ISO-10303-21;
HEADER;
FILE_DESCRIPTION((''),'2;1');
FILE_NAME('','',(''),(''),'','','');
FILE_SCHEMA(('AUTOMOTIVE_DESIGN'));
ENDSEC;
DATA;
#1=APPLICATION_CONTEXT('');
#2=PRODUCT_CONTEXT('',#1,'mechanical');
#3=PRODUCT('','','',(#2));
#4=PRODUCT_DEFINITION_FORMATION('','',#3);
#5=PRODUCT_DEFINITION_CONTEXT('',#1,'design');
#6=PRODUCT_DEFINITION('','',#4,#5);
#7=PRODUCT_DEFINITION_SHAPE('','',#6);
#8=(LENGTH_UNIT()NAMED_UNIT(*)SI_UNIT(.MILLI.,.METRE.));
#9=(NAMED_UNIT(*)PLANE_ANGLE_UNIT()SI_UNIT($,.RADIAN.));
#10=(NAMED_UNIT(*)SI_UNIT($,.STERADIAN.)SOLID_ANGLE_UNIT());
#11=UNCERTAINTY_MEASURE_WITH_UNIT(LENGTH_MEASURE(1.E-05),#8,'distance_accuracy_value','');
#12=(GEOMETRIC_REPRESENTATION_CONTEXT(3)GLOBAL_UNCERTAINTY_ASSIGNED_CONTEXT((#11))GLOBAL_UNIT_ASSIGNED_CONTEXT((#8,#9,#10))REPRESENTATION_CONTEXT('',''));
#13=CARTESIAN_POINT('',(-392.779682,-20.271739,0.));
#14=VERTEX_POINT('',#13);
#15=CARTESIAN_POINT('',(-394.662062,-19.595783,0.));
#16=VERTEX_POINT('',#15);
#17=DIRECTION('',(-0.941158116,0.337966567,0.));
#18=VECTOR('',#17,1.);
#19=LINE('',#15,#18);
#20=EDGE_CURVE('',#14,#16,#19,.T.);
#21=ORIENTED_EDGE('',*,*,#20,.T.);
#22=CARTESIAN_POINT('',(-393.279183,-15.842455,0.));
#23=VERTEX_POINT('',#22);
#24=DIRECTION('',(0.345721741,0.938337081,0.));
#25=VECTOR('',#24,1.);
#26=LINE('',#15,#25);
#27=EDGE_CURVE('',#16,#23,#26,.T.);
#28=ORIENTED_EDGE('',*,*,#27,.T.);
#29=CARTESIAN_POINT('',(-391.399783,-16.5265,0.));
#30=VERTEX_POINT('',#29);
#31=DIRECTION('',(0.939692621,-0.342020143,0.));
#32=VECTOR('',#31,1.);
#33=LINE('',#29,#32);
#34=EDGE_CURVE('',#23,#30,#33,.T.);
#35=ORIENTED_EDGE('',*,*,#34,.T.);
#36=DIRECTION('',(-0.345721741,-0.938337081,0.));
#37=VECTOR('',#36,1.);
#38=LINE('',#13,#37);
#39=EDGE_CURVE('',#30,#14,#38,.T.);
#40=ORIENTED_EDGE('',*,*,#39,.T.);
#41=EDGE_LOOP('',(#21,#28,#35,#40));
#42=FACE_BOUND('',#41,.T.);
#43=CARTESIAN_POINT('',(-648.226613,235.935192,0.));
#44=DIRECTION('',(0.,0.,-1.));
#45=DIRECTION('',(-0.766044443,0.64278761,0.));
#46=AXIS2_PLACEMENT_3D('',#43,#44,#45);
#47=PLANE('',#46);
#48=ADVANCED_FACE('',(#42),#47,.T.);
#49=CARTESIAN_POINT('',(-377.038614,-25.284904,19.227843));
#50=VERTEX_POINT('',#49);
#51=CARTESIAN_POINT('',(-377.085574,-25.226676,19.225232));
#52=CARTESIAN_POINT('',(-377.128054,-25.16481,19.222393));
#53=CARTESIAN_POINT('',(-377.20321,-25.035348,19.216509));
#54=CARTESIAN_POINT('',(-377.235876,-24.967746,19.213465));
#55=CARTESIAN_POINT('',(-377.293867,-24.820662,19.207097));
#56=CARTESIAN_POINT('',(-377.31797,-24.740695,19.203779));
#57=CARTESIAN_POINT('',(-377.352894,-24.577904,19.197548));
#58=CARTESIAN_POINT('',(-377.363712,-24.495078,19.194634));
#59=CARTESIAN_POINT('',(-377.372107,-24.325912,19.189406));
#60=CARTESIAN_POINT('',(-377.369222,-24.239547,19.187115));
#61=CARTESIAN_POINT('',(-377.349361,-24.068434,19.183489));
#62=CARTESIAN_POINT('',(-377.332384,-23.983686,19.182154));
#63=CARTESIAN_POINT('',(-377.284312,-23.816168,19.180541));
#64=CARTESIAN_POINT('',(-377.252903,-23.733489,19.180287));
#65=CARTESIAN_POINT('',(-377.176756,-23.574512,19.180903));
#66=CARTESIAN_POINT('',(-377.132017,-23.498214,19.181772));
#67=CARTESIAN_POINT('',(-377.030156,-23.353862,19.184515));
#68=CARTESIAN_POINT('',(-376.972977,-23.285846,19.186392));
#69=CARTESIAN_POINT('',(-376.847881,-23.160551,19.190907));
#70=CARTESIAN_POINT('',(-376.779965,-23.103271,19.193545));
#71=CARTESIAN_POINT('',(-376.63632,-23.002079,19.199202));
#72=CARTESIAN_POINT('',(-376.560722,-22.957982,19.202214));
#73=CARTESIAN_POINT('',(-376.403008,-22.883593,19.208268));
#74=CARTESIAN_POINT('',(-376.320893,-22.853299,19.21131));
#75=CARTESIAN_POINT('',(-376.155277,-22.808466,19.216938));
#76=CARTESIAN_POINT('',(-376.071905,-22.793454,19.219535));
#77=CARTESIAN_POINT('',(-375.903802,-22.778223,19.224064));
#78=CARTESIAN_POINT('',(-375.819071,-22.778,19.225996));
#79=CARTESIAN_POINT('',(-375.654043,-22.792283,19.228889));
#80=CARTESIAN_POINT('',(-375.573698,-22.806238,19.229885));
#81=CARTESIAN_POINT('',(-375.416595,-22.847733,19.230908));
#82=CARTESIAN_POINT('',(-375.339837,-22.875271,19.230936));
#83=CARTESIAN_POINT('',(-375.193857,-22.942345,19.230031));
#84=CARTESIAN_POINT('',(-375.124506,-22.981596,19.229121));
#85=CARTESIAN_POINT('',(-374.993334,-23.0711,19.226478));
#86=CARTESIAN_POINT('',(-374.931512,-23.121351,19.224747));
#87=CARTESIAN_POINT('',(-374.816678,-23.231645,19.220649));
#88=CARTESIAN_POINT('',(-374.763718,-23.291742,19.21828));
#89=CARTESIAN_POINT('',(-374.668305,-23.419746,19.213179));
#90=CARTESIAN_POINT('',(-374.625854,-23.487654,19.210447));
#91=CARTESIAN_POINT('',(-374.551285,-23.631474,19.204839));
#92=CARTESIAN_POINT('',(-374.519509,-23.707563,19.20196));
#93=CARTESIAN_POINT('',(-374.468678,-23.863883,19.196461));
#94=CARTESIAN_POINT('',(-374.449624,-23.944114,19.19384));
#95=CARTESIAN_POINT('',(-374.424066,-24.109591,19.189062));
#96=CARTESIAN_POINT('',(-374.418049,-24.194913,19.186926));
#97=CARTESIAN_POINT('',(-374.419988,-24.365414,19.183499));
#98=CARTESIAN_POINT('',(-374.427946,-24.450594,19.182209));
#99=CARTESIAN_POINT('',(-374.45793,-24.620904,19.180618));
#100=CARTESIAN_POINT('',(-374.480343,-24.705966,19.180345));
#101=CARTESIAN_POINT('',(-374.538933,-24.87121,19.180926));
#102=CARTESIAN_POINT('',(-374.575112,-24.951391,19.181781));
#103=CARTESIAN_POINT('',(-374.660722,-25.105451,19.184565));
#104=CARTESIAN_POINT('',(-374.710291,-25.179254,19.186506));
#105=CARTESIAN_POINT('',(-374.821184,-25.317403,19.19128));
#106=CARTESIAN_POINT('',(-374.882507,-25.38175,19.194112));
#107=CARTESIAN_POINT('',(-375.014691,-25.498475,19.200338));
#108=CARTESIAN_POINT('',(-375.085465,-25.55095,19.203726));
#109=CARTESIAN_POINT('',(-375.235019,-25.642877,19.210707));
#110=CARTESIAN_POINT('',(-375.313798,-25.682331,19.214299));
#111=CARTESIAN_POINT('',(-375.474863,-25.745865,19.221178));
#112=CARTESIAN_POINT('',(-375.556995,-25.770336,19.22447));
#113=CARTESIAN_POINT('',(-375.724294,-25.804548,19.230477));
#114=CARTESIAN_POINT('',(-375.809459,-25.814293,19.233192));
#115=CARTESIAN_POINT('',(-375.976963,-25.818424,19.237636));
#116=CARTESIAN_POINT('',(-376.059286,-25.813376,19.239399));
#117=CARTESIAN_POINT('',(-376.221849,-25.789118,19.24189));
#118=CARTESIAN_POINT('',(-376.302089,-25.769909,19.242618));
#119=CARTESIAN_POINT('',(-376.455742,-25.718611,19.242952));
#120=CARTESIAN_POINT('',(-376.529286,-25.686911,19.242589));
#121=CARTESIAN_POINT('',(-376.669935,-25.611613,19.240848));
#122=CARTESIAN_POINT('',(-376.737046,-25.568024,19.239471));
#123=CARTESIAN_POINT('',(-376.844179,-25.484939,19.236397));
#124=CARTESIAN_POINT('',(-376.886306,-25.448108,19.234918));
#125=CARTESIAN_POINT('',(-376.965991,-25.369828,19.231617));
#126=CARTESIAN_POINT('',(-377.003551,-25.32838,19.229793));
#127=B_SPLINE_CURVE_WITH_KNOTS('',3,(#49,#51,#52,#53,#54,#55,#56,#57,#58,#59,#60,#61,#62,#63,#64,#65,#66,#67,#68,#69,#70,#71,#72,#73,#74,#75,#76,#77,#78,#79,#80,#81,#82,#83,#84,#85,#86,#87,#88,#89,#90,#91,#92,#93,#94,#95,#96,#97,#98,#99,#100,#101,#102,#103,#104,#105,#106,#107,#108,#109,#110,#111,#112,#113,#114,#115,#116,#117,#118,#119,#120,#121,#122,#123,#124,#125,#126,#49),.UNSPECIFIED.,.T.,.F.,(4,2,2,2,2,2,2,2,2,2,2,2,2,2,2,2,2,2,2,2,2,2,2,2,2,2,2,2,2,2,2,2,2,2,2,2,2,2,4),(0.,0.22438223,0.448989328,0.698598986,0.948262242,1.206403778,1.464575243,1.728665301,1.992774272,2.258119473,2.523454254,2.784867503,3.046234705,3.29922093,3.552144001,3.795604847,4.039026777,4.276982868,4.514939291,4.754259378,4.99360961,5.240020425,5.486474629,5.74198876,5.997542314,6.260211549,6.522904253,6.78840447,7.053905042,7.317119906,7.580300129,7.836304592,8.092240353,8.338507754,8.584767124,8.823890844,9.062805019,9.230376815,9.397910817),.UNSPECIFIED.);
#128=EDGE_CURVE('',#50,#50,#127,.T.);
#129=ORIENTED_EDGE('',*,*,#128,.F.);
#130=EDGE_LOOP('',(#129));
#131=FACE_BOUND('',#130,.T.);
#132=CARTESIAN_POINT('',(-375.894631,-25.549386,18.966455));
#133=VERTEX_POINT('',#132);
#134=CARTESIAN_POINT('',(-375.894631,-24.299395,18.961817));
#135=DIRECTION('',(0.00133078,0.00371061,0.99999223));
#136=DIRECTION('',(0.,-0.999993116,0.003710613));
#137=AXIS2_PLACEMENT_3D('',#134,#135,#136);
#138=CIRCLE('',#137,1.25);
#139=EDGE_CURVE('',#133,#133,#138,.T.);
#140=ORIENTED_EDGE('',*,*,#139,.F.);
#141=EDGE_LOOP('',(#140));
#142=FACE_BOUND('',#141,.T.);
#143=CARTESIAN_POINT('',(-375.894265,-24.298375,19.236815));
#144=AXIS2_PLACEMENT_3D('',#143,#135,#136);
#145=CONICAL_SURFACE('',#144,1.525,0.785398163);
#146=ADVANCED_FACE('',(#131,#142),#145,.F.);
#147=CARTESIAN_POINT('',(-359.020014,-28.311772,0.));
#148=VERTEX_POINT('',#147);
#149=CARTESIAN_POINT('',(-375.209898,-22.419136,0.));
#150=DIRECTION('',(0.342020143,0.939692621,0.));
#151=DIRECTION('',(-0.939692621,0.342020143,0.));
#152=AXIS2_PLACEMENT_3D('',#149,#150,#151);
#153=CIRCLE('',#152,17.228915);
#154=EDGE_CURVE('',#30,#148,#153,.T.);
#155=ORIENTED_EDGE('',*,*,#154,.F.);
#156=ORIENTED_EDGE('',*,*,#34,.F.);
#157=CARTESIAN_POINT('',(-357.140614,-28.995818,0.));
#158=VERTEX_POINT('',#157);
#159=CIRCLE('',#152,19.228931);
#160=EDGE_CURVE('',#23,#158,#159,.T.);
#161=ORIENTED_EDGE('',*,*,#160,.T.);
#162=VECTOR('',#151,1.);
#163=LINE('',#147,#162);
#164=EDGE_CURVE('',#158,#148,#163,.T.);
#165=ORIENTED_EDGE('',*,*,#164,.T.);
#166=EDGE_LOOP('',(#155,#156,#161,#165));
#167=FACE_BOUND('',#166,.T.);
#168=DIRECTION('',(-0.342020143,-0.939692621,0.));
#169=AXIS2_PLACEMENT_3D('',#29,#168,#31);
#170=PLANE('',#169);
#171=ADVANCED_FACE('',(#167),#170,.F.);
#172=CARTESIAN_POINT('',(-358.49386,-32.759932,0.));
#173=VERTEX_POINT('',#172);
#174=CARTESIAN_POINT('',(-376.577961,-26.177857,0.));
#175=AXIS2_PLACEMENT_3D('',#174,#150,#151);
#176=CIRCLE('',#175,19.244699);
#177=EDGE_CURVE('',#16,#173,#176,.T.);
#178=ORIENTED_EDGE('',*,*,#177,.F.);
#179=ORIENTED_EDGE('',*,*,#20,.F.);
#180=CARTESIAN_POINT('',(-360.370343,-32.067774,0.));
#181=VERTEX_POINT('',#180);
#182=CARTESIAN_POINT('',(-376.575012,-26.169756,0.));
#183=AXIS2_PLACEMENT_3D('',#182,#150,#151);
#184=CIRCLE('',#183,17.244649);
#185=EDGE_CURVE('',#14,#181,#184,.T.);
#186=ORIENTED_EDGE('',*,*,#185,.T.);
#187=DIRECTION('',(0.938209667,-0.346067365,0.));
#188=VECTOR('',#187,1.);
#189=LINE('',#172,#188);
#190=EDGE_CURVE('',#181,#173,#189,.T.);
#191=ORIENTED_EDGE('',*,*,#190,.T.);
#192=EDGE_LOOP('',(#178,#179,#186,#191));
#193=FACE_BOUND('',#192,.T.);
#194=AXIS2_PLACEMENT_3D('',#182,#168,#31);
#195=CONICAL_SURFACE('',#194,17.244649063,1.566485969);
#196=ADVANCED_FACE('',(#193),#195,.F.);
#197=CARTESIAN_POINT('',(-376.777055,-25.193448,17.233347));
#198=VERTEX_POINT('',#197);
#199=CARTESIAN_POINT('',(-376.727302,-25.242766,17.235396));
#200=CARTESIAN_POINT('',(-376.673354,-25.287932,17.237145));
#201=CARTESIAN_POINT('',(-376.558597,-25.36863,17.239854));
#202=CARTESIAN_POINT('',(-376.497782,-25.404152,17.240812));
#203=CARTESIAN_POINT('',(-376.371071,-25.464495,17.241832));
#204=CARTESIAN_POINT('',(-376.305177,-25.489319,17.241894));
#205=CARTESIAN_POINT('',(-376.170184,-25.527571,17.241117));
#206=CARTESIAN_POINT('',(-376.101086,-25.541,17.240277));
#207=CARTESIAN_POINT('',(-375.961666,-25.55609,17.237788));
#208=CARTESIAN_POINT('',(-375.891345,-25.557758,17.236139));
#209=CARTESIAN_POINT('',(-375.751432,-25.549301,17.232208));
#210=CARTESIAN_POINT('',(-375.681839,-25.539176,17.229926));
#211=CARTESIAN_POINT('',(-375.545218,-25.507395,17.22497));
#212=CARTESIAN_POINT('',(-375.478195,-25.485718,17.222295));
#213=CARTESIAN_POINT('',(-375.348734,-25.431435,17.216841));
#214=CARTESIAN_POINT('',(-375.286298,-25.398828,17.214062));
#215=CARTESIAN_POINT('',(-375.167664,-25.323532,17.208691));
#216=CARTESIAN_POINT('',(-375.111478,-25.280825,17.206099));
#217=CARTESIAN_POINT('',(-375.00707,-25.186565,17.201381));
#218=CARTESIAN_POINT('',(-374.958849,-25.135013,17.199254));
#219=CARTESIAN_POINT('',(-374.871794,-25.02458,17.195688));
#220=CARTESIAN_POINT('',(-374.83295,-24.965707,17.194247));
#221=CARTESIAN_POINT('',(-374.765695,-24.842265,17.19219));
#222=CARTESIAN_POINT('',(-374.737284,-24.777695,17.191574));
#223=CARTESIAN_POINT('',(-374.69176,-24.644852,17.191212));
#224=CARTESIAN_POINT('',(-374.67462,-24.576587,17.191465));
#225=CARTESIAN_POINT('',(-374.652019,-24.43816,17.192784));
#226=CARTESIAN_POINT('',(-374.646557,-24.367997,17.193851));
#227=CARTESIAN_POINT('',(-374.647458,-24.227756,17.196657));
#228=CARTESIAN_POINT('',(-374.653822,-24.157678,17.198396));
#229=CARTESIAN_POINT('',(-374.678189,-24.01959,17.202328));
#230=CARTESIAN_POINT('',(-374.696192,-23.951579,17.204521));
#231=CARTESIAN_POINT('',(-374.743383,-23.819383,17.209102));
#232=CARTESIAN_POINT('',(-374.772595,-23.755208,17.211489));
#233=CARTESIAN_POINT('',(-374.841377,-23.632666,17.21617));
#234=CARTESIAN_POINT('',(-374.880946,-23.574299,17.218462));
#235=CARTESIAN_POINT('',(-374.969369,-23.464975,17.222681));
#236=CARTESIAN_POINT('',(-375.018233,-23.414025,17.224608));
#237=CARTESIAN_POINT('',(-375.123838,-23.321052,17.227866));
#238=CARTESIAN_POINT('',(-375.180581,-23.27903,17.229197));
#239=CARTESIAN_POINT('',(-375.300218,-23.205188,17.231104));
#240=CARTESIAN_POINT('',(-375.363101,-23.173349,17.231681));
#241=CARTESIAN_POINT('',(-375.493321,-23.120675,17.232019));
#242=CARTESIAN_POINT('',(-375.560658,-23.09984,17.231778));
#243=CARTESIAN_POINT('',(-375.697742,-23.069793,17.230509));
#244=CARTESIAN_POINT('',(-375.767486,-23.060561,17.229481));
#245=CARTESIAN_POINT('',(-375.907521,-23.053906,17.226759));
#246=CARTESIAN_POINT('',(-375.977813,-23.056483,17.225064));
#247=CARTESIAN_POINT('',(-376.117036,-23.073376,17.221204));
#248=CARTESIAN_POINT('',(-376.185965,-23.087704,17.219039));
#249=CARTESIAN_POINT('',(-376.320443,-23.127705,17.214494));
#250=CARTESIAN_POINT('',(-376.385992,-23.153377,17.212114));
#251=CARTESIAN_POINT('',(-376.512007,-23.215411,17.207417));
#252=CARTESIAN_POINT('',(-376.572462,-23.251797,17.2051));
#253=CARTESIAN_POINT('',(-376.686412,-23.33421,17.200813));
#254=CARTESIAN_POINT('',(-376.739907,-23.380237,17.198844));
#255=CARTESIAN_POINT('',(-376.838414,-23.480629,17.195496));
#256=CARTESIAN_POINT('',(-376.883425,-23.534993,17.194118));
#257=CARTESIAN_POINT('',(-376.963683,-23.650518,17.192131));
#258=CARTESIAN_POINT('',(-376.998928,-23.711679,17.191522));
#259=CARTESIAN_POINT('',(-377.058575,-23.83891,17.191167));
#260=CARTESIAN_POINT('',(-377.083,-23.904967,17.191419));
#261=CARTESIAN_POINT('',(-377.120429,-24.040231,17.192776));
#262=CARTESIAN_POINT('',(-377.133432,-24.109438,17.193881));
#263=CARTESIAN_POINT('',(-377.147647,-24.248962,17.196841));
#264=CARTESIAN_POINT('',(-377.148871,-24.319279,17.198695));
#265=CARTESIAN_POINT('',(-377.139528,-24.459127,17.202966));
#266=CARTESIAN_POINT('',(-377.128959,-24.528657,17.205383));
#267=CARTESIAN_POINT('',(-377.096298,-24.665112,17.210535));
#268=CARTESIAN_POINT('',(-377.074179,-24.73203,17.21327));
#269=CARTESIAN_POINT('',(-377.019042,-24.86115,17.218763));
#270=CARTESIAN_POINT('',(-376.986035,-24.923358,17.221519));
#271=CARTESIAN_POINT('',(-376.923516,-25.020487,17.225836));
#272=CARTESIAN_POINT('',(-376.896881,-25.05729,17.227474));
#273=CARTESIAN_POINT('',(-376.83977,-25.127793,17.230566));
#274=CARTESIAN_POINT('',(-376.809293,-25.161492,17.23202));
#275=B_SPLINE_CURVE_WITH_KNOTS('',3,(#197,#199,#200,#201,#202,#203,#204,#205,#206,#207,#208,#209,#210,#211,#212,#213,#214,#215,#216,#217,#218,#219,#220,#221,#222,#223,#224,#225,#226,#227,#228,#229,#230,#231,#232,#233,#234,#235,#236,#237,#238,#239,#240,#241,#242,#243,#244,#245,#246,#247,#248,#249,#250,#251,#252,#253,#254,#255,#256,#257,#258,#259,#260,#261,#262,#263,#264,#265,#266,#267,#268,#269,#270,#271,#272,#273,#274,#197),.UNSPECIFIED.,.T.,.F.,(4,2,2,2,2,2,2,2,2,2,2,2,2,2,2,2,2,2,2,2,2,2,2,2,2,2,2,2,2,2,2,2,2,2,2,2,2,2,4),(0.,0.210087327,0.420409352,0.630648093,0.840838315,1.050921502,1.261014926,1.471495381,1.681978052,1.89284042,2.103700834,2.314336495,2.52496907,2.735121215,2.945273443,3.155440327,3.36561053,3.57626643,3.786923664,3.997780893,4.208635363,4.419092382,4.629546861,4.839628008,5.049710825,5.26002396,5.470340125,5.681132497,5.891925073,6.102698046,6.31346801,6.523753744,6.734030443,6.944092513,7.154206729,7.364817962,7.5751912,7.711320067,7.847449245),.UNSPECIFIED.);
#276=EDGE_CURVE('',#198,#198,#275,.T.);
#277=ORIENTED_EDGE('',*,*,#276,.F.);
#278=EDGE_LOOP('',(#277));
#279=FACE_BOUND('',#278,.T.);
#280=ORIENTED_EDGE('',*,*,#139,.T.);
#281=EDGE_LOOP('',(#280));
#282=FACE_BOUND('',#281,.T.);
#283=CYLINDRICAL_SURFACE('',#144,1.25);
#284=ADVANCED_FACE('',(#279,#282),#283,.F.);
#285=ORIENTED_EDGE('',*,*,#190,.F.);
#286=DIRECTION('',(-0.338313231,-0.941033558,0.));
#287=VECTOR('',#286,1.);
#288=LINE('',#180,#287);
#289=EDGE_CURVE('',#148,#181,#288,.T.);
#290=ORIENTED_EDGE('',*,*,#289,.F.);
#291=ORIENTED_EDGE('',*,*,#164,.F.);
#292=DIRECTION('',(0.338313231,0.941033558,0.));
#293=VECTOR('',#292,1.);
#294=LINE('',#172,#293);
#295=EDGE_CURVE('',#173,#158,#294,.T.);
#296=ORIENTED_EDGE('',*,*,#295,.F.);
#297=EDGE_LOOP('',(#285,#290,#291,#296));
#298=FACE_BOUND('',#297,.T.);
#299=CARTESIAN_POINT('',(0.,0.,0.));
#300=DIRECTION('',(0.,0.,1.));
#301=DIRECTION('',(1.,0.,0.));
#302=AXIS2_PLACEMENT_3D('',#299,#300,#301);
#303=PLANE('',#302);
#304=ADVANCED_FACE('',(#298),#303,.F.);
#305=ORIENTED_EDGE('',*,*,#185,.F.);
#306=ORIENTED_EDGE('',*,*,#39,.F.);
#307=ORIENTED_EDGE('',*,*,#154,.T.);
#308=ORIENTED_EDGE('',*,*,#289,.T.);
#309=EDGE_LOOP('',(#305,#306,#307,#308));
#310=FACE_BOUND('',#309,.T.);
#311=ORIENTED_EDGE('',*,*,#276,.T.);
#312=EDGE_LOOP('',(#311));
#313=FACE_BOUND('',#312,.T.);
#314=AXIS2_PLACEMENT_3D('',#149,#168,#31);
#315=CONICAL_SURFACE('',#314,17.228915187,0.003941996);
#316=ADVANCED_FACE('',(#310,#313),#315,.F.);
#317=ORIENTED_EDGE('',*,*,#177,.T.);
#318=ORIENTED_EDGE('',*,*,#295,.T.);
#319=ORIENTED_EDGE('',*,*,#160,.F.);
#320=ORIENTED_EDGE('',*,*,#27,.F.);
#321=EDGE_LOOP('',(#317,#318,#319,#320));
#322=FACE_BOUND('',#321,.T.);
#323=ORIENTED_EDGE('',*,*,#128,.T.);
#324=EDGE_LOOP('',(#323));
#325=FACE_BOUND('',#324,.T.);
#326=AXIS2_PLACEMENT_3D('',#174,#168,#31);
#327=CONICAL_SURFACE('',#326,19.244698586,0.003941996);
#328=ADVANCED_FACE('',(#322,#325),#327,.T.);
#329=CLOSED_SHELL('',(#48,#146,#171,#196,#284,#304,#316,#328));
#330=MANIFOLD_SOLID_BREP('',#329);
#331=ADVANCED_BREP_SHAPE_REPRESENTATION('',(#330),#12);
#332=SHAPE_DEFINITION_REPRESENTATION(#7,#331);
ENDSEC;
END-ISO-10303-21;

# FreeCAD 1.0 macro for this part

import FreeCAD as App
import Part
import Sketcher
Q = App.Units.Quantity


def add_polygon(sketch, points):
    """Adds a closed chain of lines whose ends are joined by coincident constraints."""
    first, n = sketch.GeometryCount, len(points)
    for a, b in zip(points, points[1:] + points[:1]):
        sketch.addGeometry(Part.LineSegment(App.Vector(*a, 0), App.Vector(*b, 0)), False)
    for i in range(n):
        sketch.addConstraint(Sketcher.Constraint("Coincident", first + i, 2, first + (i + 1) % n, 1))

doc = App.newDocument("Part")
body = doc.addObject("PartDesign::Body", "Body")

sketch1 = body.newObject("Sketcher::SketchObject", "Sketch")
sketch1.AttachmentSupport = (doc.getObject("XY_Plane"), [""])
sketch1.MapMode = "FlatFace"
add_polygon(sketch1, [(-358.49386, -32.759932), (-357.140614, -28.995818), (-359.020014, -28.311772), (-360.370343, -32.067774)])
sketch1.addGeometry(Part.LineSegment(App.Vector(-375.209898, -22.419136, 0), App.Vector(-376.577961, -26.177858, 0)), True)
sketch1.addConstraint([
    Sketcher.Constraint("Parallel", 0, 2),
    Sketcher.Constraint("Perpendicular", 1, 4),
    Sketcher.Constraint("Angle", 1, Q("160 deg")),
    Sketcher.Constraint("DistanceY", 2, 2, 1, 2, 3.756001),
    Sketcher.Constraint("DistanceX", 4, 1, -1, 1, 375.209898),
    Sketcher.Constraint("DistanceX", 1, 2, 0, 2, 1.8794),
    Sketcher.Constraint("DistanceX", 4, 2, 3, 2, 18.084101),
    Sketcher.Constraint("Distance", 0, 3.999979),
    Sketcher.Constraint("Distance", 3, 2.000068),
    Sketcher.Constraint("DistanceX", 3, 2, -1, 1, 358.49386),
    Sketcher.Constraint("DistanceY", 0, 2, 4, 1, 6.576682),
    Sketcher.Constraint("DistanceY", 0, 2, -1, 1, 28.995818),
])
revolution = body.newObject("PartDesign::Revolution", "Revolution")
revolution.Profile = sketch1
revolution.ReferenceAxis = (sketch1, ["Axis0"])
revolution.Angle = 180

sketch2 = body.newObject("Sketcher::SketchObject", "Sketch001")
sketch2.Placement = App.Placement(App.Vector(0.024814, 0.069189, 18.646126), App.Rotation(App.Vector(0, 0.999993116, -0.003710613), App.Vector(-0.999999115, 0.000004938, 0.001330771), App.Vector(0.00133078, 0.00371061, 0.99999223), "ZXY"))
sketch2.addGeometry(Part.Circle(App.Vector(-24.4, 375.9, 0), App.Vector(0, 0, 1), 1.2), False)
sketch2.addConstraint([
    Sketcher.Constraint("Diameter", 0, 2.5),
    Sketcher.Constraint("DistanceX", 0, 3, -1, 1, 24.369588),
    Sketcher.Constraint("DistanceY", -1, 1, 0, 3, 375.919413),
])
doc.recompute()
hole = body.newObject("PartDesign::Hole", "Hole")
hole.Profile = sketch2
hole.ThreadType = "None"
hole.Diameter = 2.5
hole.DepthType = "Dimension"
hole.Depth = 19.28897
hole.DrillPoint = "Flat"
hole.HoleCutType = "Countersink"
hole.HoleCutDiameter = 3.05
hole.HoleCutCountersinkAngle = 90

doc.recompute()
